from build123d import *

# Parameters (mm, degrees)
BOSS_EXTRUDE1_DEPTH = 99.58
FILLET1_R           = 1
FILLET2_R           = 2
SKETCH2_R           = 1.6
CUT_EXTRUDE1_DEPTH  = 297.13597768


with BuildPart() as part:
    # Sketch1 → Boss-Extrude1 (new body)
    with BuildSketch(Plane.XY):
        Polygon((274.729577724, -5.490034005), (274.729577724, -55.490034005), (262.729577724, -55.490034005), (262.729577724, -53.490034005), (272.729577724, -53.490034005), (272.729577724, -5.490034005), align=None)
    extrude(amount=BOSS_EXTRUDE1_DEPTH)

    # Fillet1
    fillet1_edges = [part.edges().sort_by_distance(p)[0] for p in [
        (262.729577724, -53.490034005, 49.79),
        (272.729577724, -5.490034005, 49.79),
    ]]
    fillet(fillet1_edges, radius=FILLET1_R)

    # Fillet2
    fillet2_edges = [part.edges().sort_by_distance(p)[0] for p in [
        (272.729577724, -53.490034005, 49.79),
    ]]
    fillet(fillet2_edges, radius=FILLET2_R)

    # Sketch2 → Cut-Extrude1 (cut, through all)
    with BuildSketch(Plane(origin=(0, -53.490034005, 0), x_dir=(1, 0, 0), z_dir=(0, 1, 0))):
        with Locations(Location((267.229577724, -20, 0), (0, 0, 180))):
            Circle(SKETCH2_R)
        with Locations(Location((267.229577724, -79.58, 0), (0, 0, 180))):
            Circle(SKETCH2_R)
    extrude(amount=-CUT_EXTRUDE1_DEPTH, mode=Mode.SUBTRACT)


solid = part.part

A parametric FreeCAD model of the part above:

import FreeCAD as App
import Part
import Sketcher
from FreeCAD import Vector


def edges_at(feature, points):
    """Names of the edges that pass closest to the given points."""
    edges = feature.Shape.Edges
    near = lambda p: min(range(len(edges)), key=lambda i: edges[i].distToShape(Part.Vertex(*p))[0])
    return sorted({f"Edge{near(p) + 1}" for p in points})


def add_polygon(sketch, points):
    """Adds a closed chain of lines whose ends are joined by coincident constraints."""
    first, n = sketch.GeometryCount, len(points)
    for a, b in zip(points, points[1:] + points[:1]):
        sketch.addGeometry(Part.LineSegment(App.Vector(*a, 0), App.Vector(*b, 0)), False)
    for i in range(n):
        sketch.addConstraint(Sketcher.Constraint("Coincident", first + i, 2, first + (i + 1) % n, 1))

doc = App.newDocument("Part")
body = doc.addObject("PartDesign::Body", "Body")

# Sketch on XY plane
sketch1 = doc.addObject("Sketcher::SketchObject", "Sketch")
body.addObject(sketch1)
sketch1.AttachmentSupport = (doc.XY_Plane, [""])
sketch1.MapMode = "FlatFace"
add_polygon(sketch1, [(274.729578, -55.490034), (274.729578, -5.490034), (272.729578, -5.490034), (272.729578, -53.490034), (262.729578, -53.490034), (262.729578, -55.490034)])  # lines 0-5
sketch1.addConstraint([
    Sketcher.Constraint("Vertical", 0),
    Sketcher.Constraint("Horizontal", 1),
    Sketcher.Constraint("Vertical", 2),
    Sketcher.Constraint("Horizontal", 3),
    Sketcher.Constraint("Vertical", 4),
    Sketcher.Constraint("Horizontal", 5),
    Sketcher.Constraint("Equal", 1, 4),
    Sketcher.Constraint("DistanceX", 1, 2, 1, 1, 2.0),
    Sketcher.Constraint("DistanceX", 3, 2, 3, 1, 10.0),
    Sketcher.Constraint("DistanceY", 0, 1, 0, 2, 50.0),
    Sketcher.Constraint("DistanceX", -1, 1, 0, 2, 274.729578),
    Sketcher.Constraint("DistanceY", 0, 2, -1, 1, 5.490034),
])
pad1 = doc.addObject("PartDesign::Pad", "Pad")
body.addObject(pad1)
pad1.Profile = sketch1
pad1.Length = 99.58
doc.recompute()

fillet = doc.addObject("PartDesign::Fillet", "Fillet")
body.addObject(fillet)
fillet.Base = (pad1, edges_at(pad1, [(262.73, -53.49, 49.79), (272.73, -5.49, 49.79)]))
fillet.Radius = 1
doc.recompute()

fillet2 = doc.addObject("PartDesign::Fillet", "Fillet001")
body.addObject(fillet2)
fillet2.Base = (fillet, edges_at(fillet, [(272.73, -53.49, 49.79)]))
fillet2.Radius = 2

# Sketch on XZ plane
sketch2 = doc.addObject("Sketcher::SketchObject", "Sketch001")
body.addObject(sketch2)
sketch2.AttachmentSupport = (doc.XZ_Plane, [""])
sketch2.MapMode = "FlatFace"
sketch2.AttachmentOffset = App.Placement(Vector(0, 0, 53.490034), App.Rotation())
sketch2.addGeometry([
    Part.Circle(Vector(267.229578, 20, 0), Vector(0, 0, 1), 1.6),
    Part.Circle(Vector(267.229578, 79.58, 0), Vector(0, 0, 1), 1.6),
], False)
sketch2.addConstraint([
    Sketcher.Constraint("Equal", 0, 1),
    Sketcher.Constraint("Vertical", 0, 3, 1, 3),
    Sketcher.Constraint("Diameter", 0, 3.2),
    Sketcher.Constraint("DistanceY", -1, 1, 0, 3, 20.0),
    Sketcher.Constraint("DistanceY", -1, 1, 1, 3, 79.58),
    Sketcher.Constraint("DistanceX", -1, 1, 0, 3, 267.229578),
])
pocket1 = doc.addObject("PartDesign::Pocket", "Pocket")
body.addObject(pocket1)
pocket1.Profile = sketch2
pocket1.Type = "ThroughAll"
pocket1.Reversed = True

doc.recompute()
